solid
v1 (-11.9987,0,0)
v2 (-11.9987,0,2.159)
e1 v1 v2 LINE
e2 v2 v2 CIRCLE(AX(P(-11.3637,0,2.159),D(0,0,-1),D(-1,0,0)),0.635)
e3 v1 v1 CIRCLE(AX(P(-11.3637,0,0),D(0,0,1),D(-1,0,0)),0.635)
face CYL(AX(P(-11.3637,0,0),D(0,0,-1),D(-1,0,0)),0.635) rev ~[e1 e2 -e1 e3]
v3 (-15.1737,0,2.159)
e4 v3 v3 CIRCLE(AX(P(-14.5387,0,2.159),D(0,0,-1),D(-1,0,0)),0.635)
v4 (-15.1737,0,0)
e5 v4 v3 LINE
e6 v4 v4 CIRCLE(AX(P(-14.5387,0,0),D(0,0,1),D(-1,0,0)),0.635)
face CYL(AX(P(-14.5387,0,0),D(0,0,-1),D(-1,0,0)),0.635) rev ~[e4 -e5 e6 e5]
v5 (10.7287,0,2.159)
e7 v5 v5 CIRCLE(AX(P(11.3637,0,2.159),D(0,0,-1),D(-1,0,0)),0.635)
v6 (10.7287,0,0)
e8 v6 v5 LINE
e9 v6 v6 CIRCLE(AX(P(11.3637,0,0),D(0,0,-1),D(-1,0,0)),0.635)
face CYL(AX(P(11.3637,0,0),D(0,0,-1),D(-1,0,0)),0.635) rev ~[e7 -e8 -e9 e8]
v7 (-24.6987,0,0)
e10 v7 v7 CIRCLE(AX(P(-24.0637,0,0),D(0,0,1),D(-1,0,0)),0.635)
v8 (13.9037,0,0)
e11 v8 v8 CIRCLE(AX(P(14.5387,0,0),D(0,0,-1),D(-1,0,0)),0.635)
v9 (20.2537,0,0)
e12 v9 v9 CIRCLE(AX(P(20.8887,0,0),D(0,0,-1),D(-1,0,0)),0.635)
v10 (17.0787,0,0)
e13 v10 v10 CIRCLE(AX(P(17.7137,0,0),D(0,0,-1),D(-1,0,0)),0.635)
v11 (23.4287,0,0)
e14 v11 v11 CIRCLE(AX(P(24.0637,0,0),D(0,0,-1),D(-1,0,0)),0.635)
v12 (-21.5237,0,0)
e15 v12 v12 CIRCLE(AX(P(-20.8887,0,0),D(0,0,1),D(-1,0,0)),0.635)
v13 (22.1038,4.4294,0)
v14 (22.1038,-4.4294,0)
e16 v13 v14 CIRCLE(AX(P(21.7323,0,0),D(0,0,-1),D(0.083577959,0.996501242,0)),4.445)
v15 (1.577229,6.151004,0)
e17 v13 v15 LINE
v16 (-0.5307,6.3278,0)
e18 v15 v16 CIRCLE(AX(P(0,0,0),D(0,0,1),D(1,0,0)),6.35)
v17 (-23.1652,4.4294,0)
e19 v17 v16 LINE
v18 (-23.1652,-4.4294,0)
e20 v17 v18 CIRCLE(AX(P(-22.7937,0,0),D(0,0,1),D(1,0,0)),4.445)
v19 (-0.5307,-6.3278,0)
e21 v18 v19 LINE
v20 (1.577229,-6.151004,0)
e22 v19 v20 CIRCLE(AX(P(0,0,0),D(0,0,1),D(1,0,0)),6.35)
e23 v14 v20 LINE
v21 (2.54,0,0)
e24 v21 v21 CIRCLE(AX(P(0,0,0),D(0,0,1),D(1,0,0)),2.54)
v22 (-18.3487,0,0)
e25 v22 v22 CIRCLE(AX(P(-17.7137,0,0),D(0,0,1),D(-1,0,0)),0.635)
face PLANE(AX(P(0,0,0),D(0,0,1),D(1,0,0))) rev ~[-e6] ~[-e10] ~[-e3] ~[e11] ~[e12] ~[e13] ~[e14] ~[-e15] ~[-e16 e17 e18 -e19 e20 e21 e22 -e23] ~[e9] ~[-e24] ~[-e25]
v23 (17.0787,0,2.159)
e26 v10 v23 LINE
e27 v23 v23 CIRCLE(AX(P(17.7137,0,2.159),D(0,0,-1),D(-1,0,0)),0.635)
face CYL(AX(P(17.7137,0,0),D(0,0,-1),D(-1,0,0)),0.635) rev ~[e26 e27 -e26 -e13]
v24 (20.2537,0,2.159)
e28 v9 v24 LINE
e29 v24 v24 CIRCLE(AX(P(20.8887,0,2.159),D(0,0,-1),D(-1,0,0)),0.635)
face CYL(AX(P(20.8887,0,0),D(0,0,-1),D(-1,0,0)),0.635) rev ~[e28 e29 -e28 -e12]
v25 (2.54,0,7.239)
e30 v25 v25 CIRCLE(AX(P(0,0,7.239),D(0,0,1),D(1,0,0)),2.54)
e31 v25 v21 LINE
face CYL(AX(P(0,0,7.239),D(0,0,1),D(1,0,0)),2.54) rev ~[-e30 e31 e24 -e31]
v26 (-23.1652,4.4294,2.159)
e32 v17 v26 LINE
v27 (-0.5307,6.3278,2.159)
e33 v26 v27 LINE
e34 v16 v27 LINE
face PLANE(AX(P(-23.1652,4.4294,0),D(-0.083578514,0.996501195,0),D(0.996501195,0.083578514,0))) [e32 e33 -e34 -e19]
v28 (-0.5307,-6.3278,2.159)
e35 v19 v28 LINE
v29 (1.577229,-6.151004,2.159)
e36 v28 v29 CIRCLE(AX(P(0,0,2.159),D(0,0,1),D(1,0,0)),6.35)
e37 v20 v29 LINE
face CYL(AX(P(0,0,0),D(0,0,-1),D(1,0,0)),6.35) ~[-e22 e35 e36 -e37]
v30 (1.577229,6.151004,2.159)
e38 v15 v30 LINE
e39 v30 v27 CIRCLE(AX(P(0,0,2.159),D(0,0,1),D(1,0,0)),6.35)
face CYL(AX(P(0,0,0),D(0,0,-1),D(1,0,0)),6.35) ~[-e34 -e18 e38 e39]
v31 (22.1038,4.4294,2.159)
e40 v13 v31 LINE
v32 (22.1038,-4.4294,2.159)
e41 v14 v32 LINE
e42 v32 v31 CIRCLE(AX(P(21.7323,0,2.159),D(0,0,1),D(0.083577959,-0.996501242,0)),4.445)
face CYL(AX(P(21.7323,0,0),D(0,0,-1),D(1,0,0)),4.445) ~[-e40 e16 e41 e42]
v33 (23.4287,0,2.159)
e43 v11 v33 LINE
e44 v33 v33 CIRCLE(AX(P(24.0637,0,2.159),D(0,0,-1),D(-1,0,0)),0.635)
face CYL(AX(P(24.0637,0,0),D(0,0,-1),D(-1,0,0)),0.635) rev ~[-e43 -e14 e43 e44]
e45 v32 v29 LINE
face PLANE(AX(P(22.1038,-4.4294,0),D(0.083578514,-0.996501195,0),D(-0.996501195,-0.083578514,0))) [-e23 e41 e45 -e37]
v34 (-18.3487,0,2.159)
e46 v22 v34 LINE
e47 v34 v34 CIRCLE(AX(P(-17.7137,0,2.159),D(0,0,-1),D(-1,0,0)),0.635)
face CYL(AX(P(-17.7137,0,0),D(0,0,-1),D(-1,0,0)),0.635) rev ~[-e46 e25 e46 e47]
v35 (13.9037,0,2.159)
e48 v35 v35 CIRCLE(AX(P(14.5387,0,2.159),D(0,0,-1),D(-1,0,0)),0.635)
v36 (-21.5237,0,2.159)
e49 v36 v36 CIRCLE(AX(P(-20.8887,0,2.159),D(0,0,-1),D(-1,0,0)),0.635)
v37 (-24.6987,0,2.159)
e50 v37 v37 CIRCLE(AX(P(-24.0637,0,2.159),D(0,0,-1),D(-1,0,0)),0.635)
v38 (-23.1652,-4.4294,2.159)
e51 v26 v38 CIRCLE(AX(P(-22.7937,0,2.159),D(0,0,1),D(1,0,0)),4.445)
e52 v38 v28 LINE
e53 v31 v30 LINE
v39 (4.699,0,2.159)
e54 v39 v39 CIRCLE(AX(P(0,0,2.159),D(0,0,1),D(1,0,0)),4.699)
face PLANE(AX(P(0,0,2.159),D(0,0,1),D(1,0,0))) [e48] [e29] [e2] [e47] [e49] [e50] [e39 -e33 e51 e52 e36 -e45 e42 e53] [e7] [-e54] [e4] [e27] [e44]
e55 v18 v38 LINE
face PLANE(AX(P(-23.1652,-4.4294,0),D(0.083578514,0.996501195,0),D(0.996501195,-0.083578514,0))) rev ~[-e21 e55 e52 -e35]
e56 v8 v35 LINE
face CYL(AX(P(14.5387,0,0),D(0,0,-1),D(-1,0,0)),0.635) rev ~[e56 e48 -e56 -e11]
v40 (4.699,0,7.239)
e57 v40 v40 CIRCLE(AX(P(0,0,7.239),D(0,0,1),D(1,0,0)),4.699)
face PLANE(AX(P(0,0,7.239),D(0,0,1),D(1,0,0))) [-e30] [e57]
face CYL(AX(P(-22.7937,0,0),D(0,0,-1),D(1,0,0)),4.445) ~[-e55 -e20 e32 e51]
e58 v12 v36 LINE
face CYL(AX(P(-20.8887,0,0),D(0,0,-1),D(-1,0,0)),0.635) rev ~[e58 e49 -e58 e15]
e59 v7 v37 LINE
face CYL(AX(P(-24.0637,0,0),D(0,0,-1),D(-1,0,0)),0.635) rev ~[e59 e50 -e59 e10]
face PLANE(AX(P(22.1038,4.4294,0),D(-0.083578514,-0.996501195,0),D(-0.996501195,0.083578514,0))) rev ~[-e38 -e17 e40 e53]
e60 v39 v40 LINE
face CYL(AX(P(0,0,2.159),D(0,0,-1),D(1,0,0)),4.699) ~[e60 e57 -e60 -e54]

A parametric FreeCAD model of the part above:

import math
import FreeCAD as App
import Part
import Sketcher

V = App.Vector
Q = App.Units.Quantity

doc = App.newDocument("Part")
params = doc.addObject("Spreadsheet::Sheet", "Params")
for row, (alias, value) in enumerate([
    ("sketch1_radius", "0.25 in"),
    ("sketch1_radius2", "0.175 in"),
    ("pad1_length", "0.085 in"),
    ("sketch2_diameter", "0.37 in"),
    ("pad2_length", "0.2 in"),
    ("sketch3_diameter", "0.2 in"),
    ("sketch4_diameter", "0.05 in"),
], start=1):
    params.set(f"A{row}", alias)
    params.set(f"B{row}", "=" + value)
    params.setAlias(f"B{row}", alias)

body = doc.addObject("PartDesign::Body", "Body")

# Sketch on XY plane
sketch1 = body.newObject("Sketcher::SketchObject", "Sketch")
sketch1.AttachmentSupport = (doc.getObject("XY_Plane"), [""])
sketch1.MapMode = "FlatFace"
sketch1.addGeometry([
    Part.ArcOfCircle(Part.Circle(V(0, 0, 0), V(0, 0, 1), 6.35), math.radians(75.61818), math.radians(94.794064)),  # 0
    Part.LineSegment(V(-0.5307, 6.3278, 0), V(-23.1652, 4.4294, 0)),  # 1
    Part.ArcOfCircle(Part.Circle(V(-22.7937, 0, 0), V(0, 0, 1), 4.445), math.radians(94.794257), math.radians(265.205743)),  # 2
    Part.LineSegment(V(-23.1652, -4.4294, 0), V(-0.5307, -6.3278, 0)),  # 3
    Part.ArcOfCircle(Part.Circle(V(0, 0, 0), V(0, 0, 1), 6.35), math.radians(-94.794064), math.radians(-75.61818)),  # 4
    Part.LineSegment(V(1.577229, -6.151004, 0), V(22.1038, -4.4294, 0)),  # 5
    Part.ArcOfCircle(Part.Circle(V(21.7323, 0, 0), V(0, 0, 1), 4.445), math.radians(-85.205743), math.radians(85.205743)),  # 6
    Part.LineSegment(V(22.1038, 4.4294, 0), V(1.577229, 6.151004, 0)),  # 7
], False)
sketch1.addConstraint([
    Sketcher.Constraint("Tangent", 0, 2, 1, 1),
    Sketcher.Constraint("Tangent", 1, 2, 2, 1),
    Sketcher.Constraint("Tangent", 2, 2, 3, 1),
    Sketcher.Constraint("Tangent", 3, 2, 4, 1),
    Sketcher.Constraint("Coincident", 4, 2, 5, 1),
    Sketcher.Constraint("Tangent", 5, 2, 6, 1),
    Sketcher.Constraint("Tangent", 6, 2, 7, 1),
    Sketcher.Constraint("Coincident", 7, 2, 0, 1),
    Sketcher.Constraint("Coincident", 0, 3, -1, 1),
    Sketcher.Constraint("Coincident", 4, 3, -1, 1),
    Sketcher.Constraint("Equal", 0, 4),
    Sketcher.Constraint("Equal", 2, 6),
    Sketcher.Constraint("Symmetric", 5, 2, 6, 2, -1),
    Sketcher.Constraint("PointOnObject", 2, 3, -1),
    Sketcher.Constraint("Parallel", 1, 5),
    Sketcher.Constraint("Radius", 0, Q("0.25 in")),
    Sketcher.Constraint("Radius", 2, Q("0.175 in")),
    Sketcher.Constraint("DistanceX", 2, 3, 6, 3, Q("1.753 in")),
    Sketcher.Constraint("DistanceX", 3, 2, 4, 2, Q("0.083 in")),
])
sketch1.setExpression("Constraints[15]", "Params.sketch1_radius")
sketch1.setExpression("Constraints[16]", "Params.sketch1_radius2")
pad1 = body.newObject("PartDesign::Pad", "Pad")
pad1.Profile = sketch1
pad1.setExpression("Length", "Params.pad1_length")

# Sketch on XY plane
sketch2 = body.newObject("Sketcher::SketchObject", "Sketch001")
sketch2.AttachmentSupport = (doc.getObject("XY_Plane"), [""])
sketch2.MapMode = "FlatFace"
sketch2.AttachmentOffset = App.Placement(V(0, 0, 0.085 * 25.4), App.Rotation())
sketch2.addGeometry(Part.Circle(V(0, 0, 0), V(0, 0, 1), 4.699), False)
sketch2.addConstraint([
    Sketcher.Constraint("Coincident", 0, 3, -1, 1),
    Sketcher.Constraint("Diameter", 0, Q("0.37 in")),
])
sketch2.setExpression("Constraints[1]", "Params.sketch2_diameter")
pad2 = body.newObject("PartDesign::Pad", "Pad001")
pad2.Profile = sketch2
pad2.setExpression("Length", "Params.pad2_length")

# Sketch on XY plane
sketch3 = body.newObject("Sketcher::SketchObject", "Sketch002")
sketch3.AttachmentSupport = (doc.getObject("XY_Plane"), [""])
sketch3.MapMode = "FlatFace"
sketch3.AttachmentOffset = App.Placement(V(0, 0, 0.285 * 25.4), App.Rotation())
sketch3.addGeometry(Part.Circle(V(0, 0, 0), V(0, 0, 1), 2.54), False)
sketch3.addConstraint([
    Sketcher.Constraint("Coincident", 0, 3, -1, 1),
    Sketcher.Constraint("Diameter", 0, Q("0.2 in")),
])
sketch3.setExpression("Constraints[1]", "Params.sketch3_diameter")
pocket1 = body.newObject("PartDesign::Pocket", "Pocket")
pocket1.Profile = sketch3
pocket1.Type = "ThroughAll"

# Sketch on XY plane
sketch4 = body.newObject("Sketcher::SketchObject", "Sketch003")
sketch4.AttachmentSupport = (doc.getObject("XY_Plane"), [""])
sketch4.MapMode = "FlatFace"
sketch4.addGeometry([
    Part.Circle(V(-24.0637, 0, 0), V(0, 0, 1), 0.635),  # 0
    Part.Circle(V(-11.3637, 0, 0), V(0, 0, 1), 0.635),  # 1
    Part.Circle(V(-14.5387, 0, 0), V(0, 0, 1), 0.635),  # 2
    Part.Circle(V(-17.7137, 0, 0), V(0, 0, 1), 0.635),  # 3
    Part.Circle(V(-20.8887, 0, 0), V(0, 0, 1), 0.635),  # 4
    Part.Circle(V(24.0637, 0, 0), V(0, 0, 1), 0.635),  # 5
    Part.Circle(V(20.8887, 0, 0), V(0, 0, 1), 0.635),  # 6
    Part.Circle(V(17.7137, 0, 0), V(0, 0, 1), 0.635),  # 7
    Part.Circle(V(14.5387, 0, 0), V(0, 0, 1), 0.635),  # 8
    Part.Circle(V(11.3637, 0, 0), V(0, 0, 1), 0.635),  # 9
], False)
sketch4.addConstraint([
    Sketcher.Constraint("Equal", 0, 1),
    Sketcher.Constraint("Equal", 1, 2),
    Sketcher.Constraint("Equal", 2, 3),
    Sketcher.Constraint("Equal", 3, 4),
    Sketcher.Constraint("Equal", 4, 5),
    Sketcher.Constraint("Equal", 5, 6),
    Sketcher.Constraint("Equal", 6, 7),
    Sketcher.Constraint("Equal", 7, 8),
    Sketcher.Constraint("Equal", 8, 9),
    Sketcher.Constraint("Symmetric", 0, 3, 5, 3, -1, 1),
    Sketcher.Constraint("Symmetric", 4, 3, 6, 3, -1, 1),
    Sketcher.Constraint("Symmetric", 3, 3, 7, 3, -1, 1),
    Sketcher.Constraint("Symmetric", 2, 3, 8, 3, -1, 1),
    Sketcher.Constraint("Symmetric", 1, 3, 9, 3, -1, 1),
    Sketcher.Constraint("PointOnObject", 0, 3, -1),
    Sketcher.Constraint("PointOnObject", 1, 3, -1),
    Sketcher.Constraint("PointOnObject", 2, 3, -1),
    Sketcher.Constraint("PointOnObject", 3, 3, -1),
    Sketcher.Constraint("PointOnObject", 4, 3, -1),
    Sketcher.Constraint("Diameter", 0, Q("0.05 in")),
    Sketcher.Constraint("DistanceX", 2, 3, 1, 3, Q("0.125 in")),
    Sketcher.Constraint("DistanceX", 3, 3, 2, 3, Q("0.125 in")),
    Sketcher.Constraint("DistanceX", 0, 3, 4, 3, Q("0.125 in")),
    Sketcher.Constraint("DistanceX", 4, 3, 3, 3, Q("0.125 in")),
    Sketcher.Constraint("DistanceX", 0, 3, -1, 1, Q("0.9474 in")),
])
sketch4.setExpression("Constraints[19]", "Params.sketch4_diameter")
pocket2 = body.newObject("PartDesign::Pocket", "Pocket001")
pocket2.Profile = sketch4
pocket2.Type = "ThroughAll"
pocket2.Reversed = True

doc.recompute()
